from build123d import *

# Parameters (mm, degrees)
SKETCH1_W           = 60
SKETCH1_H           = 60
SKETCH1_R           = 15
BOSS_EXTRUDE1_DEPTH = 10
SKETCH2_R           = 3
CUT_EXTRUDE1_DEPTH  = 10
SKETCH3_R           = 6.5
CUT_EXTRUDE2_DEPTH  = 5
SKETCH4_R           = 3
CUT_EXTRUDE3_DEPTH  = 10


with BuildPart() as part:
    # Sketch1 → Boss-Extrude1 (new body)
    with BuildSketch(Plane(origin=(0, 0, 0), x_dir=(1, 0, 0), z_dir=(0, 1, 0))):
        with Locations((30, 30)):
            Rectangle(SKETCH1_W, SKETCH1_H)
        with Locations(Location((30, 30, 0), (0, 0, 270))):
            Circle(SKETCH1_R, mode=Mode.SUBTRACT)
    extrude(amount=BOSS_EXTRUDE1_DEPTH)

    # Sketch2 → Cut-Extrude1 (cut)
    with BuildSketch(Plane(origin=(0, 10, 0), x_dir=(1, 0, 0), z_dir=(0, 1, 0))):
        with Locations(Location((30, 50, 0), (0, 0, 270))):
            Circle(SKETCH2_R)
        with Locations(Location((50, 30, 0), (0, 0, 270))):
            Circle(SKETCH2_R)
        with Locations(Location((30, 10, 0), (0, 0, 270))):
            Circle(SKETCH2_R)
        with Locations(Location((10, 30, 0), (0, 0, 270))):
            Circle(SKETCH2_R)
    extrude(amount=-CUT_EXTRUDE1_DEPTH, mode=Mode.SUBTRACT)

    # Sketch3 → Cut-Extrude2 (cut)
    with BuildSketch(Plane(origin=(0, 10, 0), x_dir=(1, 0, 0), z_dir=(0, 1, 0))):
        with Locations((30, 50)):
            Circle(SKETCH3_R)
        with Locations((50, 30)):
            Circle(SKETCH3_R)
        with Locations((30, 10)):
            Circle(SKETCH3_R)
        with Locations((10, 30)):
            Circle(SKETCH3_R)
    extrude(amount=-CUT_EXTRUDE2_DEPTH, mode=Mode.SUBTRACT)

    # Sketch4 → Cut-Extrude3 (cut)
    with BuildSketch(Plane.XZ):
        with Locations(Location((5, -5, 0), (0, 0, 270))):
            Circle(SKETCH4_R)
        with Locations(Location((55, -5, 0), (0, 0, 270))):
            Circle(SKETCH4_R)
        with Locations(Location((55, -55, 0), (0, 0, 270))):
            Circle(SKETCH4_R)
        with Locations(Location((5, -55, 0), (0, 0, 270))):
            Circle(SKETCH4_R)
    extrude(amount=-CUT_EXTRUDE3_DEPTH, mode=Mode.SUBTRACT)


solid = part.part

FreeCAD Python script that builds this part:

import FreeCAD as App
import Part
import Sketcher
from FreeCAD import Vector
Q = App.Units.Quantity

doc = App.newDocument("Part")
body = doc.addObject("PartDesign::Body", "Body")

# Sketch on XZ plane
sketch1 = doc.addObject("Sketcher::SketchObject", "Sketch")
body.addObject(sketch1)
sketch1.AttachmentSupport = (doc.XZ_Plane, [""])
sketch1.MapMode = "FlatFace"
sketch1.addGeometry(Part.LineSegment(Vector(0, -60, 0), Vector(0, 0, 0)), False)
sketch1.addGeometry(Part.LineSegment(Vector(0, 0, 0), Vector(60, 0, 0)), False)
sketch1.addGeometry(Part.LineSegment(Vector(60, 0, 0), Vector(60, -60, 0)), False)
sketch1.addGeometry(Part.LineSegment(Vector(60, -60, 0), Vector(0, -60, 0)), False)
sketch1.addGeometry(Part.Circle(Vector(30, -30, 0), Vector(0, 0, 1), 15), False)
sketch1.addConstraint(Sketcher.Constraint("Coincident", 0, 2, 1, 1))
sketch1.addConstraint(Sketcher.Constraint("Coincident", 1, 2, 2, 1))
sketch1.addConstraint(Sketcher.Constraint("Coincident", 2, 2, 3, 1))
sketch1.addConstraint(Sketcher.Constraint("Coincident", 3, 2, 0, 1))
sketch1.addConstraint(Sketcher.Constraint("Vertical", 0))
sketch1.addConstraint(Sketcher.Constraint("Horizontal", 1))
sketch1.addConstraint(Sketcher.Constraint("Vertical", 2))
sketch1.addConstraint(Sketcher.Constraint("Horizontal", 3))
sketch1.addConstraint(Sketcher.Constraint("Coincident", 0, 2, -1, 1))
sketch1.addConstraint(Sketcher.Constraint("Equal", 3, 0))
sketch1.addConstraint(Sketcher.Constraint("Diameter", 4, Q("30 mm")))
sketch1.addConstraint(Sketcher.Constraint("DistanceX", 1, 1, 1, 2, Q("60 mm")))
sketch1.addConstraint(Sketcher.Constraint("DistanceX", -1, 1, 4, 3, Q("30 mm")))
sketch1.addConstraint(Sketcher.Constraint("DistanceY", 4, 3, -1, 1, Q("30 mm")))
pad1 = doc.addObject("PartDesign::Pad", "Pad")
body.addObject(pad1)
pad1.Profile = sketch1
pad1.Length = 10
pad1.Reversed = True

# Sketch on XZ plane
sketch2 = doc.addObject("Sketcher::SketchObject", "Sketch001")
body.addObject(sketch2)
sketch2.AttachmentSupport = (doc.XZ_Plane, [""])
sketch2.MapMode = "FlatFace"
sketch2.AttachmentOffset = App.Placement(Vector(0, 0, -10), App.Rotation())
sketch2.addGeometry(Part.Circle(Vector(30, -50, 0), Vector(0, 0, 1), 3), False)
sketch2.addGeometry(Part.Circle(Vector(50, -30, 0), Vector(0, 0, 1), 3), False)
sketch2.addGeometry(Part.Circle(Vector(30, -10, 0), Vector(0, 0, 1), 3), False)
sketch2.addGeometry(Part.Circle(Vector(10, -30, 0), Vector(0, 0, 1), 3), False)
sketch2.addConstraint(Sketcher.Constraint("Equal", 0, 1))
sketch2.addConstraint(Sketcher.Constraint("Equal", 1, 2))
sketch2.addConstraint(Sketcher.Constraint("Equal", 2, 3))
sketch2.addConstraint(Sketcher.Constraint("Horizontal", 1, 3, 3, 3))
sketch2.addConstraint(Sketcher.Constraint("Vertical", 0, 3, 2, 3))
sketch2.addConstraint(Sketcher.Constraint("Diameter", 0, Q("6 mm")))
sketch2.addConstraint(Sketcher.Constraint("DistanceX", -1, 1, 0, 3, Q("30 mm")))
sketch2.addConstraint(Sketcher.Constraint("DistanceY", 0, 3, -1, 1, Q("50 mm")))
sketch2.addConstraint(Sketcher.Constraint("DistanceX", -1, 1, 1, 3, Q("50 mm")))
sketch2.addConstraint(Sketcher.Constraint("DistanceY", 1, 3, -1, 1, Q("30 mm")))
sketch2.addConstraint(Sketcher.Constraint("DistanceY", 2, 3, -1, 1, Q("10 mm")))
sketch2.addConstraint(Sketcher.Constraint("DistanceX", -1, 1, 3, 3, Q("10 mm")))
pocket1 = doc.addObject("PartDesign::Pocket", "Pocket")
body.addObject(pocket1)
pocket1.Profile = sketch2
pocket1.Length = 10
pocket1.Reversed = True

# Sketch on XZ plane
sketch3 = doc.addObject("Sketcher::SketchObject", "Sketch002")
body.addObject(sketch3)
sketch3.AttachmentSupport = (doc.XZ_Plane, [""])
sketch3.MapMode = "FlatFace"
sketch3.AttachmentOffset = App.Placement(Vector(0, 0, -10), App.Rotation())
sketch3.addGeometry(Part.Circle(Vector(30, -50, 0), Vector(0, 0, 1), 6.5), False)
sketch3.addGeometry(Part.Circle(Vector(50, -30, 0), Vector(0, 0, 1), 6.5), False)
sketch3.addGeometry(Part.Circle(Vector(30, -10, 0), Vector(0, 0, 1), 6.5), False)
sketch3.addGeometry(Part.Circle(Vector(10, -30, 0), Vector(0, 0, 1), 6.5), False)
sketch3.addConstraint(Sketcher.Constraint("Equal", 0, 1))
sketch3.addConstraint(Sketcher.Constraint("Equal", 1, 2))
sketch3.addConstraint(Sketcher.Constraint("Equal", 2, 3))
sketch3.addConstraint(Sketcher.Constraint("Horizontal", 1, 3, 3, 3))
sketch3.addConstraint(Sketcher.Constraint("Vertical", 0, 3, 2, 3))
sketch3.addConstraint(Sketcher.Constraint("Diameter", 0, Q("13 mm")))
sketch3.addConstraint(Sketcher.Constraint("DistanceX", -1, 1, 0, 3, Q("30 mm")))
sketch3.addConstraint(Sketcher.Constraint("DistanceY", 0, 3, -1, 1, Q("50 mm")))
sketch3.addConstraint(Sketcher.Constraint("DistanceX", -1, 1, 1, 3, Q("50 mm")))
sketch3.addConstraint(Sketcher.Constraint("DistanceY", 1, 3, -1, 1, Q("30 mm")))
sketch3.addConstraint(Sketcher.Constraint("DistanceY", 2, 3, -1, 1, Q("10 mm")))
sketch3.addConstraint(Sketcher.Constraint("DistanceX", -1, 1, 3, 3, Q("10 mm")))
pocket2 = doc.addObject("PartDesign::Pocket", "Pocket001")
body.addObject(pocket2)
pocket2.Profile = sketch3
pocket2.Length = 5
pocket2.Reversed = True

# Sketch on XZ plane
sketch4 = doc.addObject("Sketcher::SketchObject", "Sketch003")
body.addObject(sketch4)
sketch4.AttachmentSupport = (doc.XZ_Plane, [""])
sketch4.MapMode = "FlatFace"
sketch4.addGeometry(Part.Circle(Vector(5, -5, 0), Vector(0, 0, 1), 3), False)
sketch4.addGeometry(Part.Circle(Vector(55, -5, 0), Vector(0, 0, 1), 3), False)
sketch4.addGeometry(Part.Circle(Vector(55, -55, 0), Vector(0, 0, 1), 3), False)
sketch4.addGeometry(Part.Circle(Vector(5, -55, 0), Vector(0, 0, 1), 3), False)
sketch4.addConstraint(Sketcher.Constraint("Equal", 0, 1))
sketch4.addConstraint(Sketcher.Constraint("Equal", 1, 2))
sketch4.addConstraint(Sketcher.Constraint("Equal", 2, 3))
sketch4.addConstraint(Sketcher.Constraint("Horizontal", 0, 3, 1, 3))
sketch4.addConstraint(Sketcher.Constraint("Horizontal", 2, 3, 3, 3))
sketch4.addConstraint(Sketcher.Constraint("Vertical", 1, 3, 2, 3))
sketch4.addConstraint(Sketcher.Constraint("Vertical", 0, 3, 3, 3))
sketch4.addConstraint(Sketcher.Constraint("Diameter", 0, Q("6 mm")))
sketch4.addConstraint(Sketcher.Constraint("DistanceX", -1, 1, 0, 3, Q("5 mm")))
sketch4.addConstraint(Sketcher.Constraint("DistanceY", 0, 3, -1, 1, Q("5 mm")))
sketch4.addConstraint(Sketcher.Constraint("DistanceX", -1, 1, 1, 3, Q("55 mm")))
sketch4.addConstraint(Sketcher.Constraint("DistanceY", 2, 3, -1, 1, Q("55 mm")))
pocket3 = doc.addObject("PartDesign::Pocket", "Pocket002")
body.addObject(pocket3)
pocket3.Profile = sketch4
pocket3.Length = 10

doc.recompute()
